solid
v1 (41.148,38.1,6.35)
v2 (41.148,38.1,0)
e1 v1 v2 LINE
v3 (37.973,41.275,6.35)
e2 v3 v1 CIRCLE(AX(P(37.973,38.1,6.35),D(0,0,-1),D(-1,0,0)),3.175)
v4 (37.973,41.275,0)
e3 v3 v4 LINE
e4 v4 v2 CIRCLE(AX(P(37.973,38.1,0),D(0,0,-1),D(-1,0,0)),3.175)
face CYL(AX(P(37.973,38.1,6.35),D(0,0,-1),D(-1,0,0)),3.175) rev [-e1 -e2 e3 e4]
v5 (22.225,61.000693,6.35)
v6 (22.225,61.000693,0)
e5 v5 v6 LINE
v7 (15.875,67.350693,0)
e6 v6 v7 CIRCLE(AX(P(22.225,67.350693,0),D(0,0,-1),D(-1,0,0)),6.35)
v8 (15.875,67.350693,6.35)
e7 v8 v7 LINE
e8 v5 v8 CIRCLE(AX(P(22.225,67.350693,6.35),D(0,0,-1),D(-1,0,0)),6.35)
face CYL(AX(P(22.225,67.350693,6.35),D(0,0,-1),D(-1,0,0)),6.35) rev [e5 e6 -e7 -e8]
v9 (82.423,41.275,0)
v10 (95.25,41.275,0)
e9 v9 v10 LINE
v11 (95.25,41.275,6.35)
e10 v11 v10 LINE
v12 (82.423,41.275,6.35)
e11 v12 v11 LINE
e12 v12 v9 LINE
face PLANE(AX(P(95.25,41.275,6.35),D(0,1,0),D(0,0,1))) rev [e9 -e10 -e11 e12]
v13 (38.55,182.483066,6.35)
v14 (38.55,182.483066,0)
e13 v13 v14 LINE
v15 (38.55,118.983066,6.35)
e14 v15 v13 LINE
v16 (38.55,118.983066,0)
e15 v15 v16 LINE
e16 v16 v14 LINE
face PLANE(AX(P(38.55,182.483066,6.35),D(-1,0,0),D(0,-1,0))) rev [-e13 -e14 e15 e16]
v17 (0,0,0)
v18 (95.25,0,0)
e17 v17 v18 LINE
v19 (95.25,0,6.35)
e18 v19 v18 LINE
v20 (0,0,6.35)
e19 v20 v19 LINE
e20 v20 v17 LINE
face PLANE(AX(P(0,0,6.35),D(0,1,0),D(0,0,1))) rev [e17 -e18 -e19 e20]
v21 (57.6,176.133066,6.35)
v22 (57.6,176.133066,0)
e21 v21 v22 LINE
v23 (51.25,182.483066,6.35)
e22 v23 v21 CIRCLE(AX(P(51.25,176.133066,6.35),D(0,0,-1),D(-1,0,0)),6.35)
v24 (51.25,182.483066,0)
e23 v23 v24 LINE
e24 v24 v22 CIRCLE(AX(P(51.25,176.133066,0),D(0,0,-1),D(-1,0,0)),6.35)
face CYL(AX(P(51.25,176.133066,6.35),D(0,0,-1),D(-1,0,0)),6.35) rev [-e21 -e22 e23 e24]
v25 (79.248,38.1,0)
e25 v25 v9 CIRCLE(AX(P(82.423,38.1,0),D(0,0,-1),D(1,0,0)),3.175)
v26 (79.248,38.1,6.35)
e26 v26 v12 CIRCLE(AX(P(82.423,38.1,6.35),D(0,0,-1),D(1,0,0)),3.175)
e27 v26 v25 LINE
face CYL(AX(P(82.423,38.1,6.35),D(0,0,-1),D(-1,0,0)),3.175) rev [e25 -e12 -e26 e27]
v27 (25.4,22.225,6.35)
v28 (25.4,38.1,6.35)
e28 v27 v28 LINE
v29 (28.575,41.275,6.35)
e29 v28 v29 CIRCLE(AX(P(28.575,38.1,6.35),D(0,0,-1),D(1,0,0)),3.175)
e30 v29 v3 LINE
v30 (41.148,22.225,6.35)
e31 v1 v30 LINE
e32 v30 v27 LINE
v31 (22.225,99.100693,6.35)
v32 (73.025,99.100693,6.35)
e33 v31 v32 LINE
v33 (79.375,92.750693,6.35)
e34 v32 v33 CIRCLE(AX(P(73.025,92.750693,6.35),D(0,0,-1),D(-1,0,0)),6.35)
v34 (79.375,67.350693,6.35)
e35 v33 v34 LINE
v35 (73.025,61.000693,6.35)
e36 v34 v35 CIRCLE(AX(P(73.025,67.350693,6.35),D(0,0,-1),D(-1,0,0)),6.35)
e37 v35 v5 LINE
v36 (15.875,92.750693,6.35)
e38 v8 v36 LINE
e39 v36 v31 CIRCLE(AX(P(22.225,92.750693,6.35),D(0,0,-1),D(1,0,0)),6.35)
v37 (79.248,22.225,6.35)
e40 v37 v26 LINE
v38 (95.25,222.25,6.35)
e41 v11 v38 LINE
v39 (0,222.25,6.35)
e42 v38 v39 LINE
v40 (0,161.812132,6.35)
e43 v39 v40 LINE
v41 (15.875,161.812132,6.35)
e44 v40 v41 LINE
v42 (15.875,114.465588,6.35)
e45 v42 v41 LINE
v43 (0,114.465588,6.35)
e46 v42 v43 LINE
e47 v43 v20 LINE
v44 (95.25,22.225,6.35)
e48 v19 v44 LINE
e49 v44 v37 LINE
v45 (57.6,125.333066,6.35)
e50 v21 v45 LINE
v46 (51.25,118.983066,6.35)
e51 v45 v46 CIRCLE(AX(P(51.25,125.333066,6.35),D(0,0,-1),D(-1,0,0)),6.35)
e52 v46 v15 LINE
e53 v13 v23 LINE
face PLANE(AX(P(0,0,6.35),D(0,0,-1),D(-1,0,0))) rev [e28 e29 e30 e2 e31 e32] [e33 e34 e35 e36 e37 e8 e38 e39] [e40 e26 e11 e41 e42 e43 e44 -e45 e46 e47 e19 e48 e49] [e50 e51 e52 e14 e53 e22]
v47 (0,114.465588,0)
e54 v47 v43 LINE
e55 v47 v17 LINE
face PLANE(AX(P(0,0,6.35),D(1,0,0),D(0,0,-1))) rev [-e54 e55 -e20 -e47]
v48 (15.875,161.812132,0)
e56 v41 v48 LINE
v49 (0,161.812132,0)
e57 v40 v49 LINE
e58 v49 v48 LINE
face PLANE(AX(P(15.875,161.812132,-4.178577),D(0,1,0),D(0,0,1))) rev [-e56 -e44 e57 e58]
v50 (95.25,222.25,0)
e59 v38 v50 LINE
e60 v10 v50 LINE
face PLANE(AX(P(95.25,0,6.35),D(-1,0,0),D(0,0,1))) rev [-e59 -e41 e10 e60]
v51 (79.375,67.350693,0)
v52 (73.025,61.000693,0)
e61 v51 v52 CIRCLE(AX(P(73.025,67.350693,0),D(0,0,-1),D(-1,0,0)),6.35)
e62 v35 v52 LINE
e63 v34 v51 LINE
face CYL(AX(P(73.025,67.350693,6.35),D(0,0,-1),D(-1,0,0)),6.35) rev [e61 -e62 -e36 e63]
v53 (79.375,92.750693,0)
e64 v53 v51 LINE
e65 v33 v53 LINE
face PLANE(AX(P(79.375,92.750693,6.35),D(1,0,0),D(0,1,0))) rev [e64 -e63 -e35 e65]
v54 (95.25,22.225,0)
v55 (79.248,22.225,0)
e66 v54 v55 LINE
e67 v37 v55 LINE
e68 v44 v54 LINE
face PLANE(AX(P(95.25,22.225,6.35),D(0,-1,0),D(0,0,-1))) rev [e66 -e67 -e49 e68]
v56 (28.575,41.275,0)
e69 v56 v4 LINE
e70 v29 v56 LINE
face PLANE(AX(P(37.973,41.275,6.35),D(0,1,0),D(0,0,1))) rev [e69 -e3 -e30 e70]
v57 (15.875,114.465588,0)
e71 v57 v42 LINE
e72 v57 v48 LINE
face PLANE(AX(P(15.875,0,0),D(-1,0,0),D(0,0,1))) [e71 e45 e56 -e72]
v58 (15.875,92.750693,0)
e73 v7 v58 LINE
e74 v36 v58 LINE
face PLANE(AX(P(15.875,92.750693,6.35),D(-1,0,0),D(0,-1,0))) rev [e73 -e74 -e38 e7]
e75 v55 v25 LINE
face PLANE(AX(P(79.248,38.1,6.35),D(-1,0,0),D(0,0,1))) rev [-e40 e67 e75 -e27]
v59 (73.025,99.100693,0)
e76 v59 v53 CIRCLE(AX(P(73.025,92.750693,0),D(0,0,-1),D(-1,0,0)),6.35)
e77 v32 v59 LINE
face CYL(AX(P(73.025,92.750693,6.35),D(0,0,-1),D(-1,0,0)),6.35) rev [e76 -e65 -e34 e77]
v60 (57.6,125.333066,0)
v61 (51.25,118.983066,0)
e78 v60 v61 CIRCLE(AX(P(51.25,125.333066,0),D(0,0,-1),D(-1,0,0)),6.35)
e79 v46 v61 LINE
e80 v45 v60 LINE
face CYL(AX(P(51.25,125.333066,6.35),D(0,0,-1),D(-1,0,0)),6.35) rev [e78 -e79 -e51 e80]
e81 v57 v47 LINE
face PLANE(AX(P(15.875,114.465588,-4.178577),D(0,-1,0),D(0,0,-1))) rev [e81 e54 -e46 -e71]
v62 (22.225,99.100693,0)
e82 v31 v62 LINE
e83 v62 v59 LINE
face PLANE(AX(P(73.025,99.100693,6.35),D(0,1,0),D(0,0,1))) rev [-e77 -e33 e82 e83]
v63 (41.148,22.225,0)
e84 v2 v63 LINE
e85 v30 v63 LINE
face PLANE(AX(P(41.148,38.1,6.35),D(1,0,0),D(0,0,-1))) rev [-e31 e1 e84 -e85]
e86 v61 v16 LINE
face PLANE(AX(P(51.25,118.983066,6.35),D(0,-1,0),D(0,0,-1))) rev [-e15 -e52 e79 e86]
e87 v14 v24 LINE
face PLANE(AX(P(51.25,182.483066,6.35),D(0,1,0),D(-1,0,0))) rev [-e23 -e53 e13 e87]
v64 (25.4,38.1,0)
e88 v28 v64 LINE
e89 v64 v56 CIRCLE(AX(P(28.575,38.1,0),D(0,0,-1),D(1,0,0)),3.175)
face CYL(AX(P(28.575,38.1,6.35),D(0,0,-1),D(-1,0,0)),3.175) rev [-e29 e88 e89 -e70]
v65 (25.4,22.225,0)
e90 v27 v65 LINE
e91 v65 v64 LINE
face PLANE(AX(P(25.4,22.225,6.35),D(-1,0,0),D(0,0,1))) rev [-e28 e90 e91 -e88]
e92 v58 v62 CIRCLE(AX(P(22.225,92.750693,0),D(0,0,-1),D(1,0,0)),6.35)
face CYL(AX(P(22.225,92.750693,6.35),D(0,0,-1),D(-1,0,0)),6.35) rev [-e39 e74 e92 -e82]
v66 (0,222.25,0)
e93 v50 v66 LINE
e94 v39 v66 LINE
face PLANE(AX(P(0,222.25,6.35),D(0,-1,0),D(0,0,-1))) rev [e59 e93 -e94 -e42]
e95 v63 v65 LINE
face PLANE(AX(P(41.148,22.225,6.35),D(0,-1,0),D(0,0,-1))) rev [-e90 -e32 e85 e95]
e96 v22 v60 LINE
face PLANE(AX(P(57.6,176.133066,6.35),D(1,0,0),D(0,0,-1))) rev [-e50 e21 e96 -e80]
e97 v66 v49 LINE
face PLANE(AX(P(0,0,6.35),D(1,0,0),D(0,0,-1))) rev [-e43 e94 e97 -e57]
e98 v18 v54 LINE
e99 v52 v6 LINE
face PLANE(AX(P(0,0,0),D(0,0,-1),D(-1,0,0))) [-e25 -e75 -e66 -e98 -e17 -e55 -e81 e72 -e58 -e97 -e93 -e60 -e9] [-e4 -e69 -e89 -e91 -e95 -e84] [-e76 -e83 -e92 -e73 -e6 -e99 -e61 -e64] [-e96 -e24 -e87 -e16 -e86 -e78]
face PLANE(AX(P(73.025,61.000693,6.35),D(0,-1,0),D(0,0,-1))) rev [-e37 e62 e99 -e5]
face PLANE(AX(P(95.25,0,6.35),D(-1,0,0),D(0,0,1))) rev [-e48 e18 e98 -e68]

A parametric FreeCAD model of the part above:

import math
import FreeCAD as App
import Part
import Sketcher
Q = App.Units.Quantity


def add_polygon(sketch, points):
    """Adds a closed chain of lines whose ends are joined by coincident constraints."""
    first, n = sketch.GeometryCount, len(points)
    for a, b in zip(points, points[1:] + points[:1]):
        sketch.addGeometry(Part.LineSegment(App.Vector(*a, 0), App.Vector(*b, 0)), False)
    for i in range(n):
        sketch.addConstraint(Sketcher.Constraint("Coincident", first + i, 2, first + (i + 1) % n, 1))

doc = App.newDocument("Part")
body = doc.addObject("PartDesign::Body", "Body")

sketch1 = body.newObject("Sketcher::SketchObject", "Sketch")
sketch1.AttachmentSupport = (doc.getObject("XY_Plane"), [""])
sketch1.MapMode = "FlatFace"
add_polygon(sketch1, [(0, 222), (0, 0), (95, 0), (95, 222)])
sketch1.addConstraint([
    Sketcher.Constraint("Vertical", 0),
    Sketcher.Constraint("Horizontal", 1),
    Sketcher.Constraint("Vertical", 2),
    Sketcher.Constraint("Horizontal", 3),
    Sketcher.Constraint("Coincident", 0, 2, -1, 1),
    Sketcher.Constraint("DistanceX", 1, 1, 1, 2, Q("3.75 in")),
    Sketcher.Constraint("DistanceY", 0, 2, 0, 1, Q("8.75 in")),
])
pad1 = body.newObject("PartDesign::Pad", "Pad")
pad1.Profile = sketch1
pad1.Length = Q("0.25 in")

sketch2 = body.newObject("Sketcher::SketchObject", "Sketch001")
sketch2.AttachmentSupport = (doc.getObject("YZ_Plane"), [""])
sketch2.MapMode = "FlatFace"
add_polygon(sketch2, [(162, -4), (114, -4), (114, 14), (162, 14)])
sketch2.addConstraint([
    Sketcher.Constraint("Horizontal", 0),
    Sketcher.Constraint("Vertical", 1),
    Sketcher.Constraint("Horizontal", 2),
    Sketcher.Constraint("Vertical", 3),
    Sketcher.Constraint("DistanceX", 0, 2, 0, 1, 47.346544),
    Sketcher.Constraint("DistanceY", 1, 1, 1, 2, 17.693614),
    Sketcher.Constraint("DistanceX", -1, 1, 2, 2, 161.812132),
    Sketcher.Constraint("DistanceY", 0, 2, -1, 1, 4.178577),
])
pocket1 = body.newObject("PartDesign::Pocket", "Pocket")
pocket1.Profile = sketch2
pocket1.Length = Q("0.625 in")
pocket1.Reversed = True

sketch3 = body.newObject("Sketcher::SketchObject", "Sketch002")
sketch3.AttachmentSupport = (doc.getObject("XY_Plane"), [""])
sketch3.MapMode = "FlatFace"
sketch3.addGeometry([
    Part.LineSegment(App.Vector(39, 182, 0), App.Vector(51, 182, 0)),
    Part.ArcOfCircle(Part.Circle(App.Vector(51, 176, 0), App.Vector(0, 0, 1), 6), math.radians(0), math.radians(90)),
    Part.LineSegment(App.Vector(58, 176, 0), App.Vector(58, 125, 0)),
    Part.ArcOfCircle(Part.Circle(App.Vector(51, 125, 0), App.Vector(0, 0, 1), 6), math.radians(-90), math.radians(0)),
    Part.LineSegment(App.Vector(51, 119, 0), App.Vector(39, 119, 0)),
    Part.LineSegment(App.Vector(39, 119, 0), App.Vector(39, 182, 0)),
], False)
sketch3.addConstraint([
    Sketcher.Constraint("Tangent", 0, 2, 1, 2),
    Sketcher.Constraint("Tangent", 1, 1, 2, 1),
    Sketcher.Constraint("Tangent", 2, 2, 3, 2),
    Sketcher.Constraint("Tangent", 3, 1, 4, 1),
    Sketcher.Constraint("Coincident", 4, 2, 5, 1),
    Sketcher.Constraint("Coincident", 5, 2, 0, 1),
    Sketcher.Constraint("Horizontal", 0),
    Sketcher.Constraint("Vertical", 2),
    Sketcher.Constraint("Horizontal", 4),
    Sketcher.Constraint("Vertical", 5),
    Sketcher.Constraint("Equal", 1, 3),
    Sketcher.Constraint("DistanceY", 2, 2, 2, 1, Q("2 in")),
    Sketcher.Constraint("Radius", 1, Q("0.25 in")),
    Sketcher.Constraint("DistanceX", 0, 1, 0, 2, Q("0.5 in")),
    Sketcher.Constraint("DistanceX", -1, 1, 1, 3, 51.25),
    Sketcher.Constraint("DistanceY", -1, 1, 1, 3, 176.133066),
])
pocket2 = body.newObject("PartDesign::Pocket", "Pocket001")
pocket2.Profile = sketch3
pocket2.Length = Q("0.25 in")
pocket2.Reversed = True

sketch4 = body.newObject("Sketcher::SketchObject", "Sketch003")
sketch4.AttachmentSupport = (doc.getObject("XY_Plane"), [""])
sketch4.MapMode = "FlatFace"
sketch4.addGeometry([
    Part.LineSegment(App.Vector(22, 99, 0), App.Vector(73, 99, 0)),
    Part.ArcOfCircle(Part.Circle(App.Vector(73, 93, 0), App.Vector(0, 0, 1), 6), math.radians(0), math.radians(90)),
    Part.LineSegment(App.Vector(79, 93, 0), App.Vector(79, 67, 0)),
    Part.ArcOfCircle(Part.Circle(App.Vector(73, 67, 0), App.Vector(0, 0, 1), 6), math.radians(-90), math.radians(0)),
    Part.LineSegment(App.Vector(73, 61, 0), App.Vector(22, 61, 0)),
    Part.ArcOfCircle(Part.Circle(App.Vector(22, 67, 0), App.Vector(0, 0, 1), 6), math.radians(180), math.radians(270)),
    Part.LineSegment(App.Vector(16, 67, 0), App.Vector(16, 93, 0)),
    Part.ArcOfCircle(Part.Circle(App.Vector(22, 93, 0), App.Vector(0, 0, 1), 6), math.radians(90), math.radians(180)),
], False)
sketch4.addConstraint([
    Sketcher.Constraint("Tangent", 0, 2, 1, 2),
    Sketcher.Constraint("Tangent", 1, 1, 2, 1),
    Sketcher.Constraint("Tangent", 2, 2, 3, 2),
    Sketcher.Constraint("Tangent", 3, 1, 4, 1),
    Sketcher.Constraint("Tangent", 4, 2, 5, 2),
    Sketcher.Constraint("Tangent", 5, 1, 6, 1),
    Sketcher.Constraint("Tangent", 6, 2, 7, 2),
    Sketcher.Constraint("Tangent", 7, 1, 0, 1),
    Sketcher.Constraint("Horizontal", 0),
    Sketcher.Constraint("Vertical", 2),
    Sketcher.Constraint("Horizontal", 4),
    Sketcher.Constraint("Vertical", 6),
    Sketcher.Constraint("Equal", 1, 3),
    Sketcher.Constraint("Equal", 3, 5),
    Sketcher.Constraint("Equal", 5, 7),
    Sketcher.Constraint("DistanceX", 0, 1, 0, 2, Q("2 in")),
    Sketcher.Constraint("DistanceY", 2, 2, 2, 1, Q("1 in")),
    Sketcher.Constraint("Radius", 1, Q("0.25 in")),
    Sketcher.Constraint("DistanceX", -1, 1, 1, 3, Q("2.875 in")),
    Sketcher.Constraint("DistanceY", -1, 1, 1, 3, 92.750693),
])
pocket3 = body.newObject("PartDesign::Pocket", "Pocket002")
pocket3.Profile = sketch4
pocket3.Length = Q("0.25 in")
pocket3.Reversed = True

sketch5 = body.newObject("Sketcher::SketchObject", "Sketch004")
sketch5.AttachmentSupport = (doc.getObject("XY_Plane"), [""])
sketch5.MapMode = "FlatFace"
sketch5.addGeometry([
    Part.LineSegment(App.Vector(95.2, 22.2, 0), App.Vector(79.2, 22.2, 0)),
    Part.LineSegment(App.Vector(79.2, 22.2, 0), App.Vector(79.2, 38.1, 0)),
    Part.ArcOfCircle(Part.Circle(App.Vector(82.4, 38.1, 0), App.Vector(0, 0, 1), 3.2), math.radians(90), math.radians(180)),
    Part.LineSegment(App.Vector(82.4, 41.3, 0), App.Vector(95.2, 41.3, 0)),
    Part.LineSegment(App.Vector(95.2, 41.3, 0), App.Vector(95.2, 22.2, 0)),
    Part.LineSegment(App.Vector(25.4, 22.2, 0), App.Vector(25.4, 38.1, 0)),
    Part.ArcOfCircle(Part.Circle(App.Vector(28.6, 38.1, 0), App.Vector(0, 0, 1), 3.2), math.radians(90), math.radians(180)),
    Part.LineSegment(App.Vector(28.6, 41.3, 0), App.Vector(38, 41.3, 0)),
    Part.ArcOfCircle(Part.Circle(App.Vector(38, 38.1, 0), App.Vector(0, 0, 1), 3.2), math.radians(0), math.radians(90)),
    Part.LineSegment(App.Vector(41.1, 38.1, 0), App.Vector(41.1, 22.2, 0)),
    Part.LineSegment(App.Vector(41.1, 22.2, 0), App.Vector(25.4, 22.2, 0)),
], False)
sketch5.addConstraint([
    Sketcher.Constraint("Coincident", 0, 2, 1, 1),
    Sketcher.Constraint("Tangent", 1, 2, 2, 2),
    Sketcher.Constraint("Tangent", 2, 1, 3, 1),
    Sketcher.Constraint("Coincident", 3, 2, 4, 1),
    Sketcher.Constraint("Coincident", 4, 2, 0, 1),
    Sketcher.Constraint("Tangent", 5, 2, 6, 2),
    Sketcher.Constraint("Tangent", 6, 1, 7, 1),
    Sketcher.Constraint("Tangent", 7, 2, 8, 2),
    Sketcher.Constraint("Tangent", 8, 1, 9, 1),
    Sketcher.Constraint("Coincident", 9, 2, 10, 1),
    Sketcher.Constraint("Coincident", 10, 2, 5, 1),
    Sketcher.Constraint("Horizontal", 0),
    Sketcher.Constraint("Vertical", 1),
    Sketcher.Constraint("Horizontal", 3),
    Sketcher.Constraint("Vertical", 4),
    Sketcher.Constraint("Vertical", 5),
    Sketcher.Constraint("Horizontal", 7),
    Sketcher.Constraint("Vertical", 9),
    Sketcher.Constraint("Horizontal", 10),
    Sketcher.Constraint("Equal", 2, 6),
    Sketcher.Constraint("Equal", 6, 8),
    Sketcher.Constraint("Horizontal", 2, 3, 6, 3),
    Sketcher.Constraint("Horizontal", 4, 2, 9, 2),
    Sketcher.Constraint("DistanceX", -1, 1, 5, 2, Q("1 in")),
    Sketcher.Constraint("Radius", 2, Q("0.125 in")),
    Sketcher.Constraint("DistanceX", 0, 2, 0, 1, Q("0.63 in")),
    Sketcher.Constraint("DistanceX", 7, 1, 7, 2, Q("0.37 in")),
    Sketcher.Constraint("DistanceY", 4, 2, 4, 1, Q("0.75 in")),
    Sketcher.Constraint("DistanceY", -1, 1, 2, 3, Q("1.5 in")),
    Sketcher.Constraint("DistanceX", -1, 1, 0, 2, Q("3.12 in")),
])
pocket4 = body.newObject("PartDesign::Pocket", "Pocket003")
pocket4.Profile = sketch5
pocket4.Length = Q("0.25 in")
pocket4.Reversed = True

doc.recompute()
